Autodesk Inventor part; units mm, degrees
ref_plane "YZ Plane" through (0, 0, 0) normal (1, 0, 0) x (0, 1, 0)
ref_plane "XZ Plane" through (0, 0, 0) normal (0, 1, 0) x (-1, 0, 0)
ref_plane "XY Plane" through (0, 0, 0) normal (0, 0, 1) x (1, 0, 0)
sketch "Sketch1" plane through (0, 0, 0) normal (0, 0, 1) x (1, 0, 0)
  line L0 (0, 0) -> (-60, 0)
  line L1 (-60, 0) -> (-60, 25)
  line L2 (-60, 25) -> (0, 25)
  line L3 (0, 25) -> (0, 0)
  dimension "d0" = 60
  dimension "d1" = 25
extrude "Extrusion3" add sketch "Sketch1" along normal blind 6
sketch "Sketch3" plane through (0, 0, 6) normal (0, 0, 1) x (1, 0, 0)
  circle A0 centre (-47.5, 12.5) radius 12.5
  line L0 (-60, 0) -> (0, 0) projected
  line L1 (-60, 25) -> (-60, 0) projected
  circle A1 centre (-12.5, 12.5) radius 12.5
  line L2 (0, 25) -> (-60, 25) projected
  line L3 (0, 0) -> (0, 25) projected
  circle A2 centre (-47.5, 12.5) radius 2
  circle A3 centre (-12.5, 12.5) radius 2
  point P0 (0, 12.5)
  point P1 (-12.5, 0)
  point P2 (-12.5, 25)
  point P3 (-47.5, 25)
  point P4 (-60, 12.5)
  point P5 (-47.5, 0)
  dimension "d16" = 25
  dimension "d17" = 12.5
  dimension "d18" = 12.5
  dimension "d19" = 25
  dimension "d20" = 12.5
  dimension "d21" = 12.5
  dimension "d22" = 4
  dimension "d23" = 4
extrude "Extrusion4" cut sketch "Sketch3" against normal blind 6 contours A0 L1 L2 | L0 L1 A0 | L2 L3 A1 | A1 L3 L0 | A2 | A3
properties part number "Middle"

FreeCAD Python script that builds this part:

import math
import FreeCAD as App
import Part
import Sketcher
from FreeCAD import Vector

doc = App.newDocument("Part")
body = doc.addObject("PartDesign::Body", "Body")

# Sketch on XY plane
sketch1 = body.newObject("Sketcher::SketchObject", "Sketch")
sketch1.AttachmentSupport = (doc.getObject("XY_Plane"), [""])
sketch1.MapMode = "FlatFace"
sketch1.addGeometry([
    Part.LineSegment(Vector(-60, 0, 0), Vector(0, 0, 0)),
    Part.LineSegment(Vector(0, 0, 0), Vector(0, 25, 0)),
    Part.LineSegment(Vector(0, 25, 0), Vector(-60, 25, 0)),
    Part.LineSegment(Vector(-60, 25, 0), Vector(-60, 0, 0)),
], False)
sketch1.addConstraint([
    Sketcher.Constraint("Coincident", 0, 2, 1, 1),
    Sketcher.Constraint("Coincident", 1, 2, 2, 1),
    Sketcher.Constraint("Coincident", 2, 2, 3, 1),
    Sketcher.Constraint("Coincident", 3, 2, 0, 1),
    Sketcher.Constraint("Horizontal", 0),
    Sketcher.Constraint("Vertical", 1),
    Sketcher.Constraint("Horizontal", 2),
    Sketcher.Constraint("Vertical", 3),
    Sketcher.Constraint("Coincident", 0, 2, -1, 1),
    Sketcher.Constraint("DistanceX", 0, 1, 0, 2, 60.0),
    Sketcher.Constraint("DistanceY", 1, 1, 1, 2, 25.0),
])
pad1 = body.newObject("PartDesign::Pad", "Pad")
pad1.Profile = sketch1
pad1.Length = 6

# Sketch on XY plane
sketch2 = body.newObject("Sketcher::SketchObject", "Sketch001")
sketch2.AttachmentSupport = (doc.getObject("XY_Plane"), [""])
sketch2.MapMode = "FlatFace"
sketch2.AttachmentOffset = App.Placement(Vector(0, 0, 6), App.Rotation())
sketch2.addGeometry([
    Part.ArcOfCircle(Part.Circle(Vector(-47.5, 12.5, 0), Vector(0, 0, 1), 12.5), math.radians(90), math.radians(180)),  # 0
    Part.LineSegment(Vector(-47.5, 25, 0), Vector(-60, 25, 0)),  # 1
    Part.LineSegment(Vector(-60, 25, 0), Vector(-60, 12.5, 0)),  # 2
    Part.LineSegment(Vector(-60, 0, 0), Vector(-47.5, 0, 0)),  # 3
    Part.ArcOfCircle(Part.Circle(Vector(-47.5, 12.5, 0), Vector(0, 0, 1), 12.5), math.radians(180), math.radians(270)),  # 4
    Part.LineSegment(Vector(-60, 12.5, 0), Vector(-60, 0, 0)),  # 5
    Part.LineSegment(Vector(0, 25, 0), Vector(-12.5, 25, 0)),  # 6
    Part.ArcOfCircle(Part.Circle(Vector(-12.5, 12.5, 0), Vector(0, 0, 1), 12.5), math.radians(0), math.radians(90)),  # 7
    Part.LineSegment(Vector(0, 12.5, 0), Vector(0, 25, 0)),  # 8
    Part.ArcOfCircle(Part.Circle(Vector(-12.5, 12.5, 0), Vector(0, 0, 1), 12.5), math.radians(-90), math.radians(0)),  # 9
    Part.LineSegment(Vector(-12.5, 0, 0), Vector(0, 0, 0)),  # 10
    Part.LineSegment(Vector(0, 0, 0), Vector(0, 12.5, 0)),  # 11
    Part.Circle(Vector(-47.5, 12.5, 0), Vector(0, 0, 1), 2),  # 12
    Part.Circle(Vector(-12.5, 12.5, 0), Vector(0, 0, 1), 2),  # 13
], False)
sketch2.addConstraint([
    Sketcher.Constraint("Tangent", 0, 1, 1, 1),
    Sketcher.Constraint("Coincident", 1, 2, 2, 1),
    Sketcher.Constraint("Tangent", 2, 2, 0, 2),
    Sketcher.Constraint("Tangent", 3, 2, 4, 2),
    Sketcher.Constraint("Tangent", 4, 1, 5, 1),
    Sketcher.Constraint("Coincident", 5, 2, 3, 1),
    Sketcher.Constraint("Tangent", 6, 2, 7, 2),
    Sketcher.Constraint("Tangent", 7, 1, 8, 1),
    Sketcher.Constraint("Coincident", 8, 2, 6, 1),
    Sketcher.Constraint("Tangent", 9, 1, 10, 1),
    Sketcher.Constraint("Coincident", 10, 2, 11, 1),
    Sketcher.Constraint("Tangent", 11, 2, 9, 2),
    Sketcher.Constraint("Horizontal", 1),
    Sketcher.Constraint("Vertical", 2),
    Sketcher.Constraint("Horizontal", 3),
    Sketcher.Constraint("Vertical", 5),
    Sketcher.Constraint("Horizontal", 6),
    Sketcher.Constraint("Vertical", 8),
    Sketcher.Constraint("Horizontal", 10),
    Sketcher.Constraint("Vertical", 11),
    Sketcher.Constraint("Coincident", 10, 2, -1, 1),
    Sketcher.Constraint("Coincident", 4, 3, 0, 3),
    Sketcher.Constraint("Coincident", 9, 3, 7, 3),
    Sketcher.Constraint("Coincident", 12, 3, 0, 3),
    Sketcher.Constraint("Coincident", 13, 3, 7, 3),
    Sketcher.Constraint("Equal", 0, 4),
    Sketcher.Constraint("Equal", 4, 7),
    Sketcher.Constraint("Equal", 7, 9),
    Sketcher.Constraint("Equal", 12, 13),
    Sketcher.Constraint("PointOnObject", 3, 2, -1),
    Sketcher.Constraint("Diameter", 12, 4.0),
    Sketcher.Constraint("Radius", 0, 12.5),
    Sketcher.Constraint("DistanceX", 1, 2, -1, 1, 60.0),
])
pocket1 = body.newObject("PartDesign::Pocket", "Pocket")
pocket1.Profile = sketch2
pocket1.Length = 6

doc.recompute()
